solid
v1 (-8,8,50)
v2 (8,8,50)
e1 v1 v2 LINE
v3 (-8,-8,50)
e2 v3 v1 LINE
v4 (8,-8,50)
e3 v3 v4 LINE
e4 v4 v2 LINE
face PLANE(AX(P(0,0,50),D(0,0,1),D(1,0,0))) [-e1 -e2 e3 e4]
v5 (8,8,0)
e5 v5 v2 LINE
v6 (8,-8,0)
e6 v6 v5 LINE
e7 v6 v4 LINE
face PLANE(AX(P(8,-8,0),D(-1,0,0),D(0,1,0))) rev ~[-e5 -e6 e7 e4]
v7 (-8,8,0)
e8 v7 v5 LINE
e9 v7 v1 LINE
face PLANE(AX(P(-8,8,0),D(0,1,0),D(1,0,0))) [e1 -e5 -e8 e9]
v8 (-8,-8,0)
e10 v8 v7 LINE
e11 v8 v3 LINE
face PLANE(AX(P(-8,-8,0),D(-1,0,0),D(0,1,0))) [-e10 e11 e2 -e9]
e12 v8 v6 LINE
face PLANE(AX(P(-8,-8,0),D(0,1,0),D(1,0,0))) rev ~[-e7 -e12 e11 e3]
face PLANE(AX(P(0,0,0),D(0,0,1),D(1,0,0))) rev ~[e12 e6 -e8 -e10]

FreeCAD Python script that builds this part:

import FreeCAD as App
import Part
import Sketcher


def add_polygon(sketch, points):
    """Adds a closed chain of lines whose ends are joined by coincident constraints."""
    first, n = sketch.GeometryCount, len(points)
    for a, b in zip(points, points[1:] + points[:1]):
        sketch.addGeometry(Part.LineSegment(App.Vector(*a, 0), App.Vector(*b, 0)), False)
    for i in range(n):
        sketch.addConstraint(Sketcher.Constraint("Coincident", first + i, 2, first + (i + 1) % n, 1))

doc = App.newDocument("Part")
body = doc.addObject("PartDesign::Body", "Body")

# Sketch on XY plane
sketch1 = body.newObject("Sketcher::SketchObject", "Sketch")
sketch1.AttachmentSupport = (doc.getObject("XY_Plane"), [""])
sketch1.MapMode = "FlatFace"
add_polygon(sketch1, [(-8, 8), (-8, -8), (8, -8), (8, 8)])  # lines 0-3
sketch1.addConstraint(Sketcher.Constraint("Vertical", 0))
sketch1.addConstraint(Sketcher.Constraint("Horizontal", 1))
sketch1.addConstraint(Sketcher.Constraint("Vertical", 2))
sketch1.addConstraint(Sketcher.Constraint("Horizontal", 3))
sketch1.addConstraint(Sketcher.Constraint("Symmetric", 0, 2, 2, 2, -1, 1))
sketch1.addConstraint(Sketcher.Constraint("Equal", 3, 0))
sketch1.addConstraint(Sketcher.Constraint("DistanceX", 1, 1, 1, 2, 16.0))
pad1 = body.newObject("PartDesign::Pad", "Pad")
pad1.Profile = sketch1
pad1.Length = 50

doc.recompute()
